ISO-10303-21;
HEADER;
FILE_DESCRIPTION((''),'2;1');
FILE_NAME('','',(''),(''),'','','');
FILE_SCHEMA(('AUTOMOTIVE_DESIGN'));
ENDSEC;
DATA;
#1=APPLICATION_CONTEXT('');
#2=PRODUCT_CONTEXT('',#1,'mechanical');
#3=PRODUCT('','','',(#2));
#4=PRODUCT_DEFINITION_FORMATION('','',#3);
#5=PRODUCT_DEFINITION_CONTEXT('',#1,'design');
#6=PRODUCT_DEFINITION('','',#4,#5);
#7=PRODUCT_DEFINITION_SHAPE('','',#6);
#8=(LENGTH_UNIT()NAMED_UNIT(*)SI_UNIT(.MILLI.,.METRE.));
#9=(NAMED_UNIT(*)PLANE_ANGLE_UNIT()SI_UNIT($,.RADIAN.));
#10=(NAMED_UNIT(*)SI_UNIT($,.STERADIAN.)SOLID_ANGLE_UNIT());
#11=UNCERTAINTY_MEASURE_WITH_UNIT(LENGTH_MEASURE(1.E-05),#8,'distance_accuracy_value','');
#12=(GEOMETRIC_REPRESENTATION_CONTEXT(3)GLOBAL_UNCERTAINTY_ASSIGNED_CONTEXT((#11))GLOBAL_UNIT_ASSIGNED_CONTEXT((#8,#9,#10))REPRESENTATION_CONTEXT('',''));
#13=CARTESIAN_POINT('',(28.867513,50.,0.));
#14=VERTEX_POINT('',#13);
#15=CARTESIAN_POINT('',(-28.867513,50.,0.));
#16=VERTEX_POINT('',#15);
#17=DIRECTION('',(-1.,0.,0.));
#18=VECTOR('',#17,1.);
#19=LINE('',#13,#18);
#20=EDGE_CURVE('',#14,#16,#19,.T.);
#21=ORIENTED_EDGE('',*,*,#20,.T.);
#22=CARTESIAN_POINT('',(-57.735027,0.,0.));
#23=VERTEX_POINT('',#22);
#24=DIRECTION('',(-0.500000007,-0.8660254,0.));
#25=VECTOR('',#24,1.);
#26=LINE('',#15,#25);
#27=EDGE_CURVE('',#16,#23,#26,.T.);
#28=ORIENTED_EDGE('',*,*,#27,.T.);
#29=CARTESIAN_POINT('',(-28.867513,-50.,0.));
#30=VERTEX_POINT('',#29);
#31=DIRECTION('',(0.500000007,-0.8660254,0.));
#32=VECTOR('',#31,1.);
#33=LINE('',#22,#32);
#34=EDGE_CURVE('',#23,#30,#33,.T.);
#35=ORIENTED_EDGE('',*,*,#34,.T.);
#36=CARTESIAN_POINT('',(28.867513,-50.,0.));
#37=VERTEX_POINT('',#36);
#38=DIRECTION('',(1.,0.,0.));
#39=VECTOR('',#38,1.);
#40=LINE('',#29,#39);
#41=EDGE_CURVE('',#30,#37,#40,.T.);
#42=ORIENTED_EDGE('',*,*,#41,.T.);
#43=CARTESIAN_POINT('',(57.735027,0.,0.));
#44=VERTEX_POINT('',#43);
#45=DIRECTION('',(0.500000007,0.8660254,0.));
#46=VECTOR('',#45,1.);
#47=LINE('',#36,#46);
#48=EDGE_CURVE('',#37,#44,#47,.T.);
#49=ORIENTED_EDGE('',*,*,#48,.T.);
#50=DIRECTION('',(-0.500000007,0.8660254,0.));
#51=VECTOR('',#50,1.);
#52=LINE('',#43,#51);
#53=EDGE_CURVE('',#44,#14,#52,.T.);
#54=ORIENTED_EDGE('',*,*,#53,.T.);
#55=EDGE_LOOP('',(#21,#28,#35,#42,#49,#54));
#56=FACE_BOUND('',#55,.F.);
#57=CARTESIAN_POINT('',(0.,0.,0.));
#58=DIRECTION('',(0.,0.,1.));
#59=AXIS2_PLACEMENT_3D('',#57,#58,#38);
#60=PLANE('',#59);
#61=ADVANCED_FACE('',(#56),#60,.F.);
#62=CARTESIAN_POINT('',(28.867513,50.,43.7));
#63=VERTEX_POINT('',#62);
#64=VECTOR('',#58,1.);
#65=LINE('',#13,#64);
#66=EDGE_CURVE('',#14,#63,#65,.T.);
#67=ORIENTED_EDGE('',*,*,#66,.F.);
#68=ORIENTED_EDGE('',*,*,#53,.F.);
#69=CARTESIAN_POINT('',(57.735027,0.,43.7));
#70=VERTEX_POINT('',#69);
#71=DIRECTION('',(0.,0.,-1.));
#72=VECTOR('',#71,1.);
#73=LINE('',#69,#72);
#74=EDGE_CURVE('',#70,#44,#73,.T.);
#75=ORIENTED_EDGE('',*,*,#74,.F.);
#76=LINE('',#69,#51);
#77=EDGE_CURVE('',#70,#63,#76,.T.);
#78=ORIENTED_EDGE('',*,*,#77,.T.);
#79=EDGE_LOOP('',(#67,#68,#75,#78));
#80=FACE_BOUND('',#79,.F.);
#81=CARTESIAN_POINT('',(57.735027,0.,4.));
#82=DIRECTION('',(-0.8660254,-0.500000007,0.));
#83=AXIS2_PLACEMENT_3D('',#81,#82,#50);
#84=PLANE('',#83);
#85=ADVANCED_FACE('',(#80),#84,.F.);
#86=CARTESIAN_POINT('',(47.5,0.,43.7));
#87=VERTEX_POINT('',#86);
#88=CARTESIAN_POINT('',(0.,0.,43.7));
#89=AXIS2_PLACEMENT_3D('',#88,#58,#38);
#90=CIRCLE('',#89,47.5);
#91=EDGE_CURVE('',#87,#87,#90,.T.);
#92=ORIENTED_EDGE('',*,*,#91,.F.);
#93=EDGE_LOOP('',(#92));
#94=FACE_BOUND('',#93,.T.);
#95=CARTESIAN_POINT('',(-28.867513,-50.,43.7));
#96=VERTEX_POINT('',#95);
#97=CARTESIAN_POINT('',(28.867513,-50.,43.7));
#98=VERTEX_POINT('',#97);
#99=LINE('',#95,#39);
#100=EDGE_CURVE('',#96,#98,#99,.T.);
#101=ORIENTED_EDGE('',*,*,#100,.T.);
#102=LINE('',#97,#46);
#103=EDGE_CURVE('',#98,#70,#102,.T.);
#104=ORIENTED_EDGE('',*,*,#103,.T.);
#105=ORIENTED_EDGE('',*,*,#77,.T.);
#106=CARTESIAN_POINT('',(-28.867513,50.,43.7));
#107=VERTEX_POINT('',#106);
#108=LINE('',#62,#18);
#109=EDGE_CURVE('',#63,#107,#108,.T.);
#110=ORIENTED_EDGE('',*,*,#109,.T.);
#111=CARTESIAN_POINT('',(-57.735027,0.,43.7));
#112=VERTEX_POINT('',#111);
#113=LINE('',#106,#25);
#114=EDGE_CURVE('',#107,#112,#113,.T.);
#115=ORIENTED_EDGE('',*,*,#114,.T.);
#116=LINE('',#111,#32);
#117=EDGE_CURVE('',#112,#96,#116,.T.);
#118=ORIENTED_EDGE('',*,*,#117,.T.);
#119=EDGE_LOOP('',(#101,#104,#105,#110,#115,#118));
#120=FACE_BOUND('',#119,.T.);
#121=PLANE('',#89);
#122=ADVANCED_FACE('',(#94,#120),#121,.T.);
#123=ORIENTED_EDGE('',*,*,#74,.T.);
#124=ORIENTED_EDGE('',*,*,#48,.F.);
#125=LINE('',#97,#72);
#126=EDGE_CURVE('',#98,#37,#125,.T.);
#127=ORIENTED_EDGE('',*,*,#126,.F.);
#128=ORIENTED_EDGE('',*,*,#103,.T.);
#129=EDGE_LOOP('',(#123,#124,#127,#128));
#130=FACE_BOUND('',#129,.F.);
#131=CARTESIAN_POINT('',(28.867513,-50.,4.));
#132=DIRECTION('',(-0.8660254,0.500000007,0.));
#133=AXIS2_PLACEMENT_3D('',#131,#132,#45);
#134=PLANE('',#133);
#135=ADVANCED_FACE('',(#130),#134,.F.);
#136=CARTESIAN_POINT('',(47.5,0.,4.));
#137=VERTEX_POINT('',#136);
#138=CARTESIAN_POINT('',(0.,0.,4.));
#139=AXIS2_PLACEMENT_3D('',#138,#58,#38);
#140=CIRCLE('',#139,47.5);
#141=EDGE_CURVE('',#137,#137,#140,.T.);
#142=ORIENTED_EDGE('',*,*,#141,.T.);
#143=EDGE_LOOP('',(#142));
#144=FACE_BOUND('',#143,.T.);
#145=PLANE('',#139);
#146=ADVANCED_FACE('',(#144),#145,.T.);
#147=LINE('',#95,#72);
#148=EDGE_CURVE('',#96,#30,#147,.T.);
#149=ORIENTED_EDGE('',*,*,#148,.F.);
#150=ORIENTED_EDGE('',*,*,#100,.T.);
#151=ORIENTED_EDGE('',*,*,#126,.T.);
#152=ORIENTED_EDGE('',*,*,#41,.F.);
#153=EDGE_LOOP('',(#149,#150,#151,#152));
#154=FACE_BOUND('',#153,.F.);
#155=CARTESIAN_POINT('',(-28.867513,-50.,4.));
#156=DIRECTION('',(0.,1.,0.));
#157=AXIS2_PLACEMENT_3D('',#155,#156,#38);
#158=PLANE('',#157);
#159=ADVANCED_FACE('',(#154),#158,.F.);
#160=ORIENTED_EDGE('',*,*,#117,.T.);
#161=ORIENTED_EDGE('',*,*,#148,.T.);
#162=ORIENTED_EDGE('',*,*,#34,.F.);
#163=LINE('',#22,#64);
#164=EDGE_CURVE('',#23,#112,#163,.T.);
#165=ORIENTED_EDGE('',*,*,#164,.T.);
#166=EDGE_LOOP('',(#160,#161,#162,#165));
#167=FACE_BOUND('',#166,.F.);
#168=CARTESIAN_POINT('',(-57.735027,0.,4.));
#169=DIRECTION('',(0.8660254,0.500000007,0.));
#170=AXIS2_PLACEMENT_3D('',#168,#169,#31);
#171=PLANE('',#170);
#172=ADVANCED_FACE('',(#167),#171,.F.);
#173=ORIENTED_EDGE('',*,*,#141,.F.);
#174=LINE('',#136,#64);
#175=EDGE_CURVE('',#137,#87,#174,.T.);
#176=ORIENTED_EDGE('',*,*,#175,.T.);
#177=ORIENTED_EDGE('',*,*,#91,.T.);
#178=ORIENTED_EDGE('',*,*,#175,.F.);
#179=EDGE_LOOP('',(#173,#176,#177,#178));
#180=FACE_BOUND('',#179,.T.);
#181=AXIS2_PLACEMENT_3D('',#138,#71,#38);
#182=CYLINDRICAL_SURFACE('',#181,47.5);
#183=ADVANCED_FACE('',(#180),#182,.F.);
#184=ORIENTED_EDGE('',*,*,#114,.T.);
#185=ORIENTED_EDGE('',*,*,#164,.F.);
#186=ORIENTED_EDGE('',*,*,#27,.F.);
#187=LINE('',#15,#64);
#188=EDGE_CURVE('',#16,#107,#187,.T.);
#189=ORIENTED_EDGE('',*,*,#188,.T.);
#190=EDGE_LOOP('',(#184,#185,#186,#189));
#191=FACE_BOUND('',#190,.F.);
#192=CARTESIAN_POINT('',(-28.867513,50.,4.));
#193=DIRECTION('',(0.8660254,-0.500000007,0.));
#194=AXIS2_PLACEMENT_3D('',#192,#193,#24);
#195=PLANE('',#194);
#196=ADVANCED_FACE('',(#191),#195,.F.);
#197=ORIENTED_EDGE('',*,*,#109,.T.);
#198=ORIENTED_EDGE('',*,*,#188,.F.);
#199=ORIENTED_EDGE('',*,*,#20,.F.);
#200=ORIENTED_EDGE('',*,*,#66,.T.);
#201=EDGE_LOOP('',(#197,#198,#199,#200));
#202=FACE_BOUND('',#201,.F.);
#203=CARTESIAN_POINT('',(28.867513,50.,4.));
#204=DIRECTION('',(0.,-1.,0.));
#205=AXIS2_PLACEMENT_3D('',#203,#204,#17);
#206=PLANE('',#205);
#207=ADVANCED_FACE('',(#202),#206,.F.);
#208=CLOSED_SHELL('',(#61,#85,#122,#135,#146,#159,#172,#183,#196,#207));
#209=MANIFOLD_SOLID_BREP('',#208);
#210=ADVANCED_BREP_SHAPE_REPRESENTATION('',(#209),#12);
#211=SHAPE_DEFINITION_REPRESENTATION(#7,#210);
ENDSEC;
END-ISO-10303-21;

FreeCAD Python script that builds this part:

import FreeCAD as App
import Part
import Sketcher
Q = App.Units.Quantity

doc = App.newDocument("Part")
body = doc.addObject("PartDesign::Body", "Body")

# Sketch on XY plane
sketch1 = body.newObject("Sketcher::SketchObject", "Sketch")
sketch1.AttachmentSupport = (doc.getObject("XY_Plane"), [""])
sketch1.MapMode = "FlatFace"
sketch1.addGeometry(Part.LineSegment(App.Vector(29, 50, 0), App.Vector(-29, 50, 0)), False)
sketch1.addGeometry(Part.LineSegment(App.Vector(-29, 50, 0), App.Vector(-58, 0, 0)), False)
sketch1.addGeometry(Part.LineSegment(App.Vector(-58, 0, 0), App.Vector(-29, -50, 0)), False)
sketch1.addGeometry(Part.LineSegment(App.Vector(-29, -50, 0), App.Vector(29, -50, 0)), False)
sketch1.addGeometry(Part.LineSegment(App.Vector(29, -50, 0), App.Vector(58, 0, 0)), False)
sketch1.addGeometry(Part.LineSegment(App.Vector(58, 0, 0), App.Vector(29, 50, 0)), False)
sketch1.addConstraint(Sketcher.Constraint("Coincident", 0, 2, 1, 1))
sketch1.addConstraint(Sketcher.Constraint("Coincident", 1, 2, 2, 1))
sketch1.addConstraint(Sketcher.Constraint("Coincident", 2, 2, 3, 1))
sketch1.addConstraint(Sketcher.Constraint("Coincident", 3, 2, 4, 1))
sketch1.addConstraint(Sketcher.Constraint("Coincident", 4, 2, 5, 1))
sketch1.addConstraint(Sketcher.Constraint("Coincident", 5, 2, 0, 1))
sketch1.addConstraint(Sketcher.Constraint("Horizontal", 0))
sketch1.addConstraint(Sketcher.Constraint("Horizontal", 3))
sketch1.addConstraint(Sketcher.Constraint("Symmetric", 0, 2, 3, 2, -1, 1))
sketch1.addConstraint(Sketcher.Constraint("Symmetric", 1, 2, 4, 2, -1, 1))
sketch1.addConstraint(Sketcher.Constraint("PointOnObject", 1, 2, -1))
sketch1.addConstraint(Sketcher.Constraint("Parallel", 2, 5))
sketch1.addConstraint(Sketcher.Constraint("Vertical", 0, 2, 2, 2))
sketch1.addConstraint(Sketcher.Constraint("Angle", 1, Q("-120 deg")))
sketch1.addConstraint(Sketcher.Constraint("DistanceY", -1, 1, 0, 2, Q("50 mm")))
sketch1.addConstraint(Sketcher.Constraint("DistanceX", 0, 2, 0, 1, Q("57.735026 mm")))
pad1 = body.newObject("PartDesign::Pad", "Pad")
pad1.Profile = sketch1
pad1.Length = 4

# Sketch on XY plane
sketch2 = body.newObject("Sketcher::SketchObject", "Sketch001")
sketch2.AttachmentSupport = (doc.getObject("XY_Plane"), [""])
sketch2.MapMode = "FlatFace"
sketch2.AttachmentOffset = App.Placement(App.Vector(0, 0, 4), App.Rotation())
sketch2.addGeometry(Part.LineSegment(App.Vector(58, 0, 0), App.Vector(29, 50, 0)), False)
sketch2.addGeometry(Part.LineSegment(App.Vector(29, 50, 0), App.Vector(-29, 50, 0)), False)
sketch2.addGeometry(Part.LineSegment(App.Vector(-29, 50, 0), App.Vector(-58, 0, 0)), False)
sketch2.addGeometry(Part.LineSegment(App.Vector(-58, 0, 0), App.Vector(-29, -50, 0)), False)
sketch2.addGeometry(Part.LineSegment(App.Vector(-29, -50, 0), App.Vector(29, -50, 0)), False)
sketch2.addGeometry(Part.LineSegment(App.Vector(29, -50, 0), App.Vector(58, 0, 0)), False)
sketch2.addGeometry(Part.Circle(App.Vector(0, 0, 0), App.Vector(0, 0, 1), 48), False)
sketch2.addConstraint(Sketcher.Constraint("Coincident", 0, 2, 1, 1))
sketch2.addConstraint(Sketcher.Constraint("Coincident", 1, 2, 2, 1))
sketch2.addConstraint(Sketcher.Constraint("Coincident", 2, 2, 3, 1))
sketch2.addConstraint(Sketcher.Constraint("Coincident", 3, 2, 4, 1))
sketch2.addConstraint(Sketcher.Constraint("Coincident", 4, 2, 5, 1))
sketch2.addConstraint(Sketcher.Constraint("Coincident", 5, 2, 0, 1))
sketch2.addConstraint(Sketcher.Constraint("Horizontal", 1))
sketch2.addConstraint(Sketcher.Constraint("Horizontal", 4))
sketch2.addConstraint(Sketcher.Constraint("Coincident", 6, 3, -1, 1))
sketch2.addConstraint(Sketcher.Constraint("Symmetric", 0, 2, 3, 2, -1, 1))
sketch2.addConstraint(Sketcher.Constraint("Symmetric", 2, 2, 5, 2, -1, 1))
sketch2.addConstraint(Sketcher.Constraint("PointOnObject", 2, 2, -1))
sketch2.addConstraint(Sketcher.Constraint("Parallel", 2, 5))
sketch2.addConstraint(Sketcher.Constraint("Vertical", 1, 2, 3, 2))
sketch2.addConstraint(Sketcher.Constraint("Diameter", 6, Q("95 mm")))
sketch2.addConstraint(Sketcher.Constraint("Angle", 0, Q("120 deg")))
sketch2.addConstraint(Sketcher.Constraint("DistanceY", -1, 1, 0, 2, Q("50 mm")))
sketch2.addConstraint(Sketcher.Constraint("DistanceX", 1, 2, 1, 1, Q("57.735026 mm")))
pad2 = body.newObject("PartDesign::Pad", "Pad001")
pad2.Profile = sketch2
pad2.Length = 39.7

doc.recompute()
